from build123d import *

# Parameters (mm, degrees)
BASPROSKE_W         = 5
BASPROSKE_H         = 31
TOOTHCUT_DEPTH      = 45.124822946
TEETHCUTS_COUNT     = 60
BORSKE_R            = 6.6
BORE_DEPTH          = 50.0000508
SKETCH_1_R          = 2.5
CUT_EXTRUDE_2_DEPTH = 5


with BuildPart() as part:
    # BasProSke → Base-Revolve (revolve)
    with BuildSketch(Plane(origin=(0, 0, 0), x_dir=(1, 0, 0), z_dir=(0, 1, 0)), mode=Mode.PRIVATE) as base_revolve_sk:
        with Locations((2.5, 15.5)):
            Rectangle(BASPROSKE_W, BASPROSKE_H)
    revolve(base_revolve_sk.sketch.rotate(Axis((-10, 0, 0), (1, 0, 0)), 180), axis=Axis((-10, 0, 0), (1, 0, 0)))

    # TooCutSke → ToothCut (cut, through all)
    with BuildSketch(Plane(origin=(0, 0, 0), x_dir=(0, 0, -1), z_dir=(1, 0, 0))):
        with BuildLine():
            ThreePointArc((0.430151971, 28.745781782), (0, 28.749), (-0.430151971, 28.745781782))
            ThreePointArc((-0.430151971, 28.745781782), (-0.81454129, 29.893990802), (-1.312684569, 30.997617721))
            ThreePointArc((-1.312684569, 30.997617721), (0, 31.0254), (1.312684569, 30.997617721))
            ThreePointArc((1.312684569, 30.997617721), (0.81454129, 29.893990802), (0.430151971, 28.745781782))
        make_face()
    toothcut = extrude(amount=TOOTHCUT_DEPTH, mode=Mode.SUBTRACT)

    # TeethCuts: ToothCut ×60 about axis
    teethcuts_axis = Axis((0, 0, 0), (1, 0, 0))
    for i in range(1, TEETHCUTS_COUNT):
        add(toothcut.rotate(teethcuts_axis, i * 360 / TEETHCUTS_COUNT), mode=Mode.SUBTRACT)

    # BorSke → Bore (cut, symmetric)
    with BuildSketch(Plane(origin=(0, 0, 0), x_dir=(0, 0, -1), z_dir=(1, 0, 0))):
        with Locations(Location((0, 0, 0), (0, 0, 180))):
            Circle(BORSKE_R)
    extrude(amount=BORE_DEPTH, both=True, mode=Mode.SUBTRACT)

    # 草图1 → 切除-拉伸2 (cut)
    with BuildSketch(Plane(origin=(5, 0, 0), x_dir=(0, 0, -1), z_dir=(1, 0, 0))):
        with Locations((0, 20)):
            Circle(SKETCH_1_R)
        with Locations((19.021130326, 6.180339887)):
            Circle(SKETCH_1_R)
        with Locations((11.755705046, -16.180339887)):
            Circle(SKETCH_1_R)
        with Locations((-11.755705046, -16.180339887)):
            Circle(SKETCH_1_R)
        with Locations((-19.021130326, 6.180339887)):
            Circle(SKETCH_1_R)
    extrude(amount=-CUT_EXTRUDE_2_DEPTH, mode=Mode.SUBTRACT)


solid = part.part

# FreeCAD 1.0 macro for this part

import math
import FreeCAD as App
import Part
import Sketcher

V = App.Vector


def add_polygon(sketch, points):
    """Adds a closed chain of lines whose ends are joined by coincident constraints."""
    first, n = sketch.GeometryCount, len(points)
    for a, b in zip(points, points[1:] + points[:1]):
        sketch.addGeometry(Part.LineSegment(App.Vector(*a, 0), App.Vector(*b, 0)), False)
    for i in range(n):
        sketch.addConstraint(Sketcher.Constraint("Coincident", first + i, 2, first + (i + 1) % n, 1))

doc = App.newDocument("Part")
body = doc.addObject("PartDesign::Body", "Body")

# Sketch on XZ plane
sketch1 = body.newObject("Sketcher::SketchObject", "Sketch")
sketch1.AttachmentSupport = (doc.getObject("XZ_Plane"), [""])
sketch1.MapMode = "FlatFace"
add_polygon(sketch1, [(0, -31), (0, 0), (5, 0), (5, -31)])  # lines 0-3
sketch1.addConstraint([
    Sketcher.Constraint("Vertical", 0),
    Sketcher.Constraint("Horizontal", 1),
    Sketcher.Constraint("Vertical", 2),
    Sketcher.Constraint("Horizontal", 3),
    Sketcher.Constraint("Coincident", 0, 2, -1, 1),
    Sketcher.Constraint("DistanceX", 1, 1, 1, 2, 5.0),
    Sketcher.Constraint("DistanceY", 0, 1, 0, 2, 31.0),
])
revolution = body.newObject("PartDesign::Revolution", "Revolution")
revolution.Profile = sketch1
revolution.ReferenceAxis = (sketch1, ["H_Axis"])
revolution.Angle = 360

# Sketch on YZ plane
sketch2 = body.newObject("Sketcher::SketchObject", "Sketch001")
sketch2.AttachmentSupport = (doc.getObject("YZ_Plane"), [""])
sketch2.MapMode = "FlatFace"
sketch2.addGeometry([
    Part.ArcOfCircle(Part.Circle(V(0.000004, 0, 0), V(0, 0, 1), 28.748996), math.radians(-0.85731), math.radians(0.85731)),
    Part.ArcOfCircle(Part.Circle(V(25.515264, -11.98713, 0), V(0, 0, 1), 12), math.radians(62.815145), math.radians(74.382749)),
    Part.ArcOfCircle(Part.Circle(V(0, 0, 0), V(0, 0, 1), 31.0254), math.radians(-2.424908), math.radians(2.424908)),
    Part.ArcOfCircle(Part.Circle(V(25.515264, 11.98713, 0), V(0, 0, 1), 12), math.radians(-74.382749), math.radians(-62.815145)),
], False)
sketch2.addConstraint([
    Sketcher.Constraint("Coincident", 0, 1, 1, 2),
    Sketcher.Constraint("Coincident", 1, 1, 2, 1),
    Sketcher.Constraint("Coincident", 2, 2, 3, 2),
    Sketcher.Constraint("Coincident", 3, 1, 0, 2),
    Sketcher.Constraint("Coincident", 0, 3, -1, 1),
    Sketcher.Constraint("Coincident", 2, 3, -1, 1),
    Sketcher.Constraint("Equal", 1, 3),
    Sketcher.Constraint("Symmetric", 1, 3, 3, 3, -1),
    Sketcher.Constraint("Radius", 1, 12.0),
    Sketcher.Constraint("Radius", 2, 31.0254),
    Sketcher.Constraint("Radius", 0, 28.748996),
    Sketcher.Constraint("DistanceY", 1, 3, -1, 1, 11.98713),
    Sketcher.Constraint("DistanceY", 0, 1, -1, 1, 0.430152),
])
pocket1 = body.newObject("PartDesign::Pocket", "Pocket")
pocket1.Profile = sketch2
pocket1.Type = "ThroughAll"
pocket1.Reversed = True
doc.recompute()

polarpattern = body.newObject("PartDesign::PolarPattern", "PolarPattern")
polarpattern.Originals = [pocket1]
polarpattern.Axis = (doc.getObject("X_Axis"), [""])
polarpattern.Angle = 360
polarpattern.Occurrences = 60
body.Tip = polarpattern

# Sketch on YZ plane
sketch3 = body.newObject("Sketcher::SketchObject", "Sketch002")
sketch3.AttachmentSupport = (doc.getObject("YZ_Plane"), [""])
sketch3.MapMode = "FlatFace"
sketch3.addGeometry(Part.Circle(V(0, 0, 0), V(0, 0, 1), 6.6), False)
sketch3.addConstraint([
    Sketcher.Constraint("Coincident", 0, 3, -1, 1),
    Sketcher.Constraint("Diameter", 0, 13.2),
])
pocket2 = body.newObject("PartDesign::Pocket", "Pocket001")
pocket2.Profile = sketch3
pocket2.Length = 100.000102
pocket2.Midplane = True

# Sketch on YZ plane
sketch4 = body.newObject("Sketcher::SketchObject", "Sketch003")
sketch4.AttachmentSupport = (doc.getObject("YZ_Plane"), [""])
sketch4.MapMode = "FlatFace"
sketch4.AttachmentOffset = App.Placement(V(0, 0, 5), App.Rotation())
sketch4.addGeometry([
    Part.Circle(V(20, 0, 0), V(0, 0, 1), 2.5),  # 0
    Part.Circle(V(6.18034, -19.02113, 0), V(0, 0, 1), 2.5),  # 1
    Part.Circle(V(-16.18034, -11.755705, 0), V(0, 0, 1), 2.5),  # 2
    Part.Circle(V(-16.18034, 11.755705, 0), V(0, 0, 1), 2.5),  # 3
    Part.Circle(V(6.18034, 19.02113, 0), V(0, 0, 1), 2.5),  # 4
], False)
sketch4.addConstraint([
    Sketcher.Constraint("Equal", 0, 1),
    Sketcher.Constraint("Equal", 1, 2),
    Sketcher.Constraint("Equal", 2, 3),
    Sketcher.Constraint("Equal", 3, 4),
    Sketcher.Constraint("Symmetric", 2, 3, 3, 3, -1),
    Sketcher.Constraint("Symmetric", 1, 3, 4, 3, -1),
    Sketcher.Constraint("PointOnObject", 0, 3, -1),
    Sketcher.Constraint("Diameter", 0, 5.0),
    Sketcher.Constraint("DistanceX", -1, 1, 0, 3, 20.0),
    Sketcher.Constraint("DistanceX", -1, 1, 1, 3, 6.18034),
    Sketcher.Constraint("DistanceY", 1, 3, -1, 1, 19.02113),
    Sketcher.Constraint("DistanceX", 2, 3, -1, 1, 16.18034),
    Sketcher.Constraint("DistanceY", 2, 3, 3, 3, 23.51141),
])
pocket3 = body.newObject("PartDesign::Pocket", "Pocket002")
pocket3.Profile = sketch4
pocket3.Length = 5

doc.recompute()
